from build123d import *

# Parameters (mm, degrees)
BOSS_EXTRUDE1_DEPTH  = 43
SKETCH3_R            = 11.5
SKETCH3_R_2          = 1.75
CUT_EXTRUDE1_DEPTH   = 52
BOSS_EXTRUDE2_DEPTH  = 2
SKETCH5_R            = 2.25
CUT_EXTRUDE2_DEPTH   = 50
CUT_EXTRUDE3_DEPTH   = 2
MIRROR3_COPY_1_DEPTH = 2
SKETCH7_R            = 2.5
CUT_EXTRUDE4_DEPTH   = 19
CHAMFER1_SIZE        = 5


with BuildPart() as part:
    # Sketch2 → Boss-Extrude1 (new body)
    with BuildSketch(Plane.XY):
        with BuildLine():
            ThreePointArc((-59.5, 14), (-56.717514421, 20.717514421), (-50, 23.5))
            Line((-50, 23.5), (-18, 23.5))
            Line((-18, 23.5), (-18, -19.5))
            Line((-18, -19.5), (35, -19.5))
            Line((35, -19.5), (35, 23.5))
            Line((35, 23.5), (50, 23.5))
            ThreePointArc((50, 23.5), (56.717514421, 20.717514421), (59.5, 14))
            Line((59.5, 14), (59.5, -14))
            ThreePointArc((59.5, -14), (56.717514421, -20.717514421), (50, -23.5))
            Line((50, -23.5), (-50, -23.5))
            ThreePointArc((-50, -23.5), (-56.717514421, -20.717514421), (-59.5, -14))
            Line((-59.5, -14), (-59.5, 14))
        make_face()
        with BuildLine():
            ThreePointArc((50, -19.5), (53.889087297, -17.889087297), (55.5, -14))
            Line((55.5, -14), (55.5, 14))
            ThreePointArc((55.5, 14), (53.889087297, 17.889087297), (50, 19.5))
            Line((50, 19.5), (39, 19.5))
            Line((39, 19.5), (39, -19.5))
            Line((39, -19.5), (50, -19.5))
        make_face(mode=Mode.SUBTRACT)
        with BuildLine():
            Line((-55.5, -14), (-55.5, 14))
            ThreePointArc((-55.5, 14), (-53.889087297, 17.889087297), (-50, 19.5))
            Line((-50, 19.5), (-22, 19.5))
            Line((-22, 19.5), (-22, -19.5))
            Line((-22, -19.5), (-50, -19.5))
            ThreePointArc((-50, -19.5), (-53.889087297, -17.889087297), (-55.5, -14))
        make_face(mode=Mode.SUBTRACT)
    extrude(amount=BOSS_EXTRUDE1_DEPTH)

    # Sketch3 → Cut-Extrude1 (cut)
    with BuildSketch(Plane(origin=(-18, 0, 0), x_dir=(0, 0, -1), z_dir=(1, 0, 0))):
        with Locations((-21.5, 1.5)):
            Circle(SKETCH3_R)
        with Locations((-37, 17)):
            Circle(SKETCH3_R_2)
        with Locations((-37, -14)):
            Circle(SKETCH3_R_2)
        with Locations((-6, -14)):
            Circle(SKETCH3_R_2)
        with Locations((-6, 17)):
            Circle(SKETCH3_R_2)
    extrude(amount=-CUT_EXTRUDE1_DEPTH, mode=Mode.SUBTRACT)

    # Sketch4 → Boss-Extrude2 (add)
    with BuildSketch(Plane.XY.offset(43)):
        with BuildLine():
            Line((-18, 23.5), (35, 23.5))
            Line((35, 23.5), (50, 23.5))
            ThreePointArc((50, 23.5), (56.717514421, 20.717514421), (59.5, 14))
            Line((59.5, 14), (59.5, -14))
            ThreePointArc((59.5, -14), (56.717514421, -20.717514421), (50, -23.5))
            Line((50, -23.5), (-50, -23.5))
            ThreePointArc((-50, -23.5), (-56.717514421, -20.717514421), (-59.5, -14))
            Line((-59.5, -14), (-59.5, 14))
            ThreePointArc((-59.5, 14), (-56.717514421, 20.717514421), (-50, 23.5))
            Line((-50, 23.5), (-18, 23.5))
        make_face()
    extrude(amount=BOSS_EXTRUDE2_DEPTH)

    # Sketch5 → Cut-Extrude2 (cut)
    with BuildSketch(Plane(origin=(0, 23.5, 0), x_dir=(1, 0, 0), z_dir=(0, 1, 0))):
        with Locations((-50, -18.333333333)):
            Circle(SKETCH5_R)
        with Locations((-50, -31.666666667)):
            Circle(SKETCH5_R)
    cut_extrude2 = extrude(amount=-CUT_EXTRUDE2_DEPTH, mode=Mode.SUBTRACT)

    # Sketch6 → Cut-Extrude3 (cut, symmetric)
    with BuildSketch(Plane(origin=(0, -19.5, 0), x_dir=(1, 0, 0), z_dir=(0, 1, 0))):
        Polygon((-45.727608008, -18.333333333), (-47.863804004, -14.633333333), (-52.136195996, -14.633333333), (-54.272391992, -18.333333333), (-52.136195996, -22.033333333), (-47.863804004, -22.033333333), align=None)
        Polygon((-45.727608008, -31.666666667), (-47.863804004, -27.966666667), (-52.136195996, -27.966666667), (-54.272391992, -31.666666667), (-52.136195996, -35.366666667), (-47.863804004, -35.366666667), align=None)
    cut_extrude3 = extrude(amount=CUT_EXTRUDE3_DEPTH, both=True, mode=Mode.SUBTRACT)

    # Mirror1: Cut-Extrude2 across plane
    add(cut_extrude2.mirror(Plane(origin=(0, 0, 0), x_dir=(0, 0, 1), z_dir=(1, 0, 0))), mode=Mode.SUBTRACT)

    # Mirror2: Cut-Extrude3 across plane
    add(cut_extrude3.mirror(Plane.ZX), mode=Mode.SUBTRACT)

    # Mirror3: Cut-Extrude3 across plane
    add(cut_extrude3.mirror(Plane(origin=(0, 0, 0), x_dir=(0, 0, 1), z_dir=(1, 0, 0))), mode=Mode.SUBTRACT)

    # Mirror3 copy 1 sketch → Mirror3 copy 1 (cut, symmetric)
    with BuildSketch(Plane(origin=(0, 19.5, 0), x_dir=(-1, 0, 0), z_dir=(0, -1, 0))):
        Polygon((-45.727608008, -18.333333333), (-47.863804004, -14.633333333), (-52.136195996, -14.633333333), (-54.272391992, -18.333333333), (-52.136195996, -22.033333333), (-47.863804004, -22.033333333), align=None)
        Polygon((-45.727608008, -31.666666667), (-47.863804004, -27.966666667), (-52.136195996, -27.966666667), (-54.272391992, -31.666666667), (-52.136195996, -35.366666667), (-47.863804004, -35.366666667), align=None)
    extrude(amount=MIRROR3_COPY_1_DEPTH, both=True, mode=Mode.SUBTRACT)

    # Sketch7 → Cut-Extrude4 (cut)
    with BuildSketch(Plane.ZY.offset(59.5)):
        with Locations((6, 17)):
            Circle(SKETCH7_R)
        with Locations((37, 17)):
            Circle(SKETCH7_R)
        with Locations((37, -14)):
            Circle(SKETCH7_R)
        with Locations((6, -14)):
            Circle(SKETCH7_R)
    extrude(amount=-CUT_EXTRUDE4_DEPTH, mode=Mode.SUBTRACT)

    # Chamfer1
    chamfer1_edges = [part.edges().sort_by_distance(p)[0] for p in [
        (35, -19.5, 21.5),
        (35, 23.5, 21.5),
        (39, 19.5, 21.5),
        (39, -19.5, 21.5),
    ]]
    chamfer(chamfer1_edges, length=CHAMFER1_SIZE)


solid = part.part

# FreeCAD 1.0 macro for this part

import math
import FreeCAD as App
import Part
import Sketcher

V = App.Vector
Q = App.Units.Quantity


def edges_at(feature, points):
    """Names of the edges that pass closest to the given points."""
    edges = feature.Shape.Edges
    near = lambda p: min(range(len(edges)), key=lambda i: edges[i].distToShape(Part.Vertex(*p))[0])
    return sorted({f"Edge{near(p) + 1}" for p in points})


def add_polygon(sketch, points):
    """Adds a closed chain of lines whose ends are joined by coincident constraints."""
    first, n = sketch.GeometryCount, len(points)
    for a, b in zip(points, points[1:] + points[:1]):
        sketch.addGeometry(Part.LineSegment(App.Vector(*a, 0), App.Vector(*b, 0)), False)
    for i in range(n):
        sketch.addConstraint(Sketcher.Constraint("Coincident", first + i, 2, first + (i + 1) % n, 1))

doc = App.newDocument("Part")
params = doc.addObject("Spreadsheet::Sheet", "Params")
for row, (alias, value) in enumerate([
    ("sketch1_radius", "9.5 mm"),
    ("sketch1_radius2", "5.5 mm"),
    ("sketch1_width", "100 mm"),
    ("sketch1_width2", "15 mm"),
    ("sketch1_width3", "53 mm"),
    ("pad1_length", "43 mm"),
    ("sketch2_diameter", "23 mm"),
    ("sketch2_diameter2", "3.5 mm"),
    ("pocket1_length", "52 mm"),
    ("sketch3_radius", "9.5 mm"),
    ("sketch3_width", "100 mm"),
    ("sketch3_height", "28 mm"),
    ("pad2_length", "2 mm"),
    ("sketch4_diameter", "4.5 mm"),
    ("pocket2_length", "50 mm"),
    ("pocket3_length", "4 mm"),
    ("pocket4_length", "4 mm"),
    ("sketch7_diameter", "5 mm"),
    ("pocket5_length", "19 mm"),
    ("chamfer_size", "5 mm"),
], start=1):
    params.set(f"A{row}", alias)
    params.set(f"B{row}", "=" + value)
    params.setAlias(f"B{row}", alias)

body = doc.addObject("PartDesign::Body", "Body")

# Sketch on XY plane
sketch1 = body.newObject("Sketcher::SketchObject", "Sketch")
sketch1.AttachmentSupport = (doc.getObject("XY_Plane"), [""])
sketch1.MapMode = "FlatFace"
sketch1.addGeometry([
    Part.ArcOfCircle(Part.Circle(V(-50, 14, 0), V(0, 0, 1), 9.5), math.radians(90), math.radians(180)),  # 0
    Part.LineSegment(V(-59.5, 14, 0), V(-59.5, -14, 0)),  # 1
    Part.ArcOfCircle(Part.Circle(V(-50, -14, 0), V(0, 0, 1), 9.5), math.radians(-180), math.radians(-90)),  # 2
    Part.LineSegment(V(-50, -23.5, 0), V(50, -23.5, 0)),  # 3
    Part.ArcOfCircle(Part.Circle(V(50, -14, 0), V(0, 0, 1), 9.5), math.radians(-90), math.radians(0)),  # 4
    Part.LineSegment(V(59.5, -14, 0), V(59.5, 14, 0)),  # 5
    Part.ArcOfCircle(Part.Circle(V(50, 14, 0), V(0, 0, 1), 9.5), math.radians(0), math.radians(90)),  # 6
    Part.LineSegment(V(50, 23.5, 0), V(35, 23.5, 0)),  # 7
    Part.LineSegment(V(35, 23.5, 0), V(35, -19.5, 0)),  # 8
    Part.LineSegment(V(35, -19.5, 0), V(-18, -19.5, 0)),  # 9
    Part.LineSegment(V(-18, -19.5, 0), V(-18, 23.5, 0)),  # 10
    Part.LineSegment(V(-18, 23.5, 0), V(-50, 23.5, 0)),  # 11
    Part.LineSegment(V(50, -19.5, 0), V(39, -19.5, 0)),  # 12
    Part.LineSegment(V(39, -19.5, 0), V(39, 19.5, 0)),  # 13
    Part.LineSegment(V(39, 19.5, 0), V(50, 19.5, 0)),  # 14
    Part.ArcOfCircle(Part.Circle(V(50, 14, 0), V(0, 0, 1), 5.5), math.radians(0), math.radians(90)),  # 15
    Part.LineSegment(V(55.5, 14, 0), V(55.5, -14, 0)),  # 16
    Part.ArcOfCircle(Part.Circle(V(50, -14, 0), V(0, 0, 1), 5.5), math.radians(-90), math.radians(0)),  # 17
    Part.LineSegment(V(-55.5, -14, 0), V(-55.5, 14, 0)),  # 18
    Part.ArcOfCircle(Part.Circle(V(-50, 14, 0), V(0, 0, 1), 5.5), math.radians(90), math.radians(180)),  # 19
    Part.LineSegment(V(-50, 19.5, 0), V(-22, 19.5, 0)),  # 20
    Part.LineSegment(V(-22, 19.5, 0), V(-22, -19.5, 0)),  # 21
    Part.LineSegment(V(-22, -19.5, 0), V(-50, -19.5, 0)),  # 22
    Part.ArcOfCircle(Part.Circle(V(-50, -14, 0), V(0, 0, 1), 5.5), math.radians(180), math.radians(270)),  # 23
], False)
sketch1.addConstraint([
    Sketcher.Constraint("Tangent", 0, 2, 1, 1),
    Sketcher.Constraint("Tangent", 1, 2, 2, 1),
    Sketcher.Constraint("Tangent", 2, 2, 3, 1),
    Sketcher.Constraint("Tangent", 3, 2, 4, 1),
    Sketcher.Constraint("Tangent", 4, 2, 5, 1),
    Sketcher.Constraint("Tangent", 5, 2, 6, 1),
    Sketcher.Constraint("Tangent", 6, 2, 7, 1),
    Sketcher.Constraint("Coincident", 7, 2, 8, 1),
    Sketcher.Constraint("Coincident", 8, 2, 9, 1),
    Sketcher.Constraint("Coincident", 9, 2, 10, 1),
    Sketcher.Constraint("Coincident", 10, 2, 11, 1),
    Sketcher.Constraint("Tangent", 11, 2, 0, 1),
    Sketcher.Constraint("Coincident", 12, 2, 13, 1),
    Sketcher.Constraint("Coincident", 13, 2, 14, 1),
    Sketcher.Constraint("Tangent", 14, 2, 15, 2),
    Sketcher.Constraint("Tangent", 15, 1, 16, 1),
    Sketcher.Constraint("Tangent", 16, 2, 17, 2),
    Sketcher.Constraint("Tangent", 17, 1, 12, 1),
    Sketcher.Constraint("Tangent", 18, 2, 19, 2),
    Sketcher.Constraint("Tangent", 19, 1, 20, 1),
    Sketcher.Constraint("Coincident", 20, 2, 21, 1),
    Sketcher.Constraint("Coincident", 21, 2, 22, 1),
    Sketcher.Constraint("Tangent", 22, 2, 23, 2),
    Sketcher.Constraint("Tangent", 23, 1, 18, 1),
    Sketcher.Constraint("Vertical", 1),
    Sketcher.Constraint("Horizontal", 3),
    Sketcher.Constraint("Vertical", 5),
    Sketcher.Constraint("Horizontal", 7),
    Sketcher.Constraint("Vertical", 8),
    Sketcher.Constraint("Horizontal", 9),
    Sketcher.Constraint("Vertical", 10),
    Sketcher.Constraint("Horizontal", 11),
    Sketcher.Constraint("Horizontal", 12),
    Sketcher.Constraint("Vertical", 13),
    Sketcher.Constraint("Horizontal", 14),
    Sketcher.Constraint("Vertical", 16),
    Sketcher.Constraint("Vertical", 18),
    Sketcher.Constraint("Horizontal", 20),
    Sketcher.Constraint("Vertical", 21),
    Sketcher.Constraint("Horizontal", 22),
    Sketcher.Constraint("Coincident", 15, 3, 6, 3),
    Sketcher.Constraint("Coincident", 17, 3, 4, 3),
    Sketcher.Constraint("Coincident", 19, 3, 0, 3),
    Sketcher.Constraint("Coincident", 23, 3, 2, 3),
    Sketcher.Constraint("Equal", 0, 2),
    Sketcher.Constraint("Equal", 2, 4),
    Sketcher.Constraint("Equal", 4, 6),
    Sketcher.Constraint("Equal", 17, 19),
    Sketcher.Constraint("Symmetric", 0, 3, 4, 3, -1, 1),
    Sketcher.Constraint("Horizontal", 0, 3, 6, 3),
    Sketcher.Constraint("Horizontal", 9, 2, 12, 2),
    Sketcher.Constraint("Equal", 22, 1),
    Sketcher.Constraint("Radius", 0, 9.5),
    Sketcher.Constraint("Radius", 15, 5.5),
    Sketcher.Constraint("DistanceX", 3, 1, 3, 2, 100.0),
    Sketcher.Constraint("DistanceX", 7, 2, 7, 1, 15.0),
    Sketcher.Constraint("DistanceX", 9, 2, 9, 1, 53.0),
    Sketcher.Constraint("DistanceX", 12, 2, 12, 1, 11.0),
    Sketcher.Constraint("DistanceX", 20, 1, 20, 2, 28.0),
])
sketch1.setExpression("Constraints[52]", "Params.sketch1_radius")
sketch1.setExpression("Constraints[53]", "Params.sketch1_radius2")
sketch1.setExpression("Constraints[54]", "Params.sketch1_width")
sketch1.setExpression("Constraints[55]", "Params.sketch1_width2")
sketch1.setExpression("Constraints[56]", "Params.sketch1_width3")
pad1 = body.newObject("PartDesign::Pad", "Pad")
pad1.Profile = sketch1
pad1.setExpression("Length", "Params.pad1_length")

# Sketch on YZ plane
sketch2 = body.newObject("Sketcher::SketchObject", "Sketch001")
sketch2.AttachmentSupport = (doc.getObject("YZ_Plane"), [""])
sketch2.MapMode = "FlatFace"
sketch2.AttachmentOffset = App.Placement(V(0, 0, -18), App.Rotation())
sketch2.addGeometry([
    Part.Circle(V(1.5, 21.5, 0), V(0, 0, 1), 11.5),  # 0
    Part.Circle(V(17, 37, 0), V(0, 0, 1), 1.75),  # 1
    Part.Circle(V(-14, 37, 0), V(0, 0, 1), 1.75),  # 2
    Part.Circle(V(-14, 6, 0), V(0, 0, 1), 1.75),  # 3
    Part.Circle(V(17, 6, 0), V(0, 0, 1), 1.75),  # 4
], False)
sketch2.addConstraint([
    Sketcher.Constraint("Equal", 1, 2),
    Sketcher.Constraint("Equal", 2, 3),
    Sketcher.Constraint("Equal", 3, 4),
    Sketcher.Constraint("Horizontal", 1, 3, 2, 3),
    Sketcher.Constraint("Horizontal", 3, 3, 4, 3),
    Sketcher.Constraint("Vertical", 2, 3, 3, 3),
    Sketcher.Constraint("Vertical", 1, 3, 4, 3),
    Sketcher.Constraint("Diameter", 0, 23.0),
    Sketcher.Constraint("Diameter", 1, 3.5),
    Sketcher.Constraint("DistanceX", -1, 1, 1, 3, 17.0),
    Sketcher.Constraint("DistanceY", -1, 1, 1, 3, 37.0),
    Sketcher.Constraint("DistanceX", 2, 3, -1, 1, 14.0),
    Sketcher.Constraint("DistanceY", -1, 1, 3, 3, 6.0),
    Sketcher.Constraint("DistanceX", -1, 1, 0, 3, 1.5),
    Sketcher.Constraint("DistanceY", -1, 1, 0, 3, 21.5),
])
sketch2.setExpression("Constraints[7]", "Params.sketch2_diameter")
sketch2.setExpression("Constraints[8]", "Params.sketch2_diameter2")
pocket1 = body.newObject("PartDesign::Pocket", "Pocket")
pocket1.Profile = sketch2
pocket1.setExpression("Length", "Params.pocket1_length")

# Sketch on XY plane
sketch3 = body.newObject("Sketcher::SketchObject", "Sketch002")
sketch3.AttachmentSupport = (doc.getObject("XY_Plane"), [""])
sketch3.MapMode = "FlatFace"
sketch3.AttachmentOffset = App.Placement(V(0, 0, 43), App.Rotation())
sketch3.addGeometry([
    Part.ArcOfCircle(Part.Circle(V(50, 14, 0), V(0, 0, 1), 9.5), math.radians(0), math.radians(90)),  # 0
    Part.LineSegment(V(50, 23.5, 0), V(-50, 23.5, 0)),  # 1
    Part.ArcOfCircle(Part.Circle(V(-50, 14, 0), V(0, 0, 1), 9.5), math.radians(90), math.radians(180)),  # 2
    Part.LineSegment(V(-59.5, 14, 0), V(-59.5, -14, 0)),  # 3
    Part.ArcOfCircle(Part.Circle(V(-50, -14, 0), V(0, 0, 1), 9.5), math.radians(-180), math.radians(-90)),  # 4
    Part.LineSegment(V(-50, -23.5, 0), V(50, -23.5, 0)),  # 5
    Part.ArcOfCircle(Part.Circle(V(50, -14, 0), V(0, 0, 1), 9.5), math.radians(-90), math.radians(0)),  # 6
    Part.LineSegment(V(59.5, -14, 0), V(59.5, 14, 0)),  # 7
], False)
sketch3.addConstraint([
    Sketcher.Constraint("Tangent", 0, 2, 1, 1),
    Sketcher.Constraint("Tangent", 1, 2, 2, 1),
    Sketcher.Constraint("Tangent", 2, 2, 3, 1),
    Sketcher.Constraint("Tangent", 3, 2, 4, 1),
    Sketcher.Constraint("Tangent", 4, 2, 5, 1),
    Sketcher.Constraint("Tangent", 5, 2, 6, 1),
    Sketcher.Constraint("Tangent", 6, 2, 7, 1),
    Sketcher.Constraint("Tangent", 7, 2, 0, 1),
    Sketcher.Constraint("Horizontal", 1),
    Sketcher.Constraint("Vertical", 3),
    Sketcher.Constraint("Horizontal", 5),
    Sketcher.Constraint("Vertical", 7),
    Sketcher.Constraint("Equal", 0, 2),
    Sketcher.Constraint("Equal", 2, 4),
    Sketcher.Constraint("Equal", 4, 6),
    Sketcher.Constraint("Symmetric", 0, 3, 4, 3, -1, 1),
    Sketcher.Constraint("Radius", 0, 9.5),
    Sketcher.Constraint("DistanceX", 1, 2, 1, 1, 100.0),
    Sketcher.Constraint("DistanceY", 3, 2, 3, 1, 28.0),
])
sketch3.setExpression("Constraints[16]", "Params.sketch3_radius")
sketch3.setExpression("Constraints[17]", "Params.sketch3_width")
sketch3.setExpression("Constraints[18]", "Params.sketch3_height")
pad2 = body.newObject("PartDesign::Pad", "Pad001")
pad2.Profile = sketch3
pad2.setExpression("Length", "Params.pad2_length")

# Sketch on XZ plane
sketch4 = body.newObject("Sketcher::SketchObject", "Sketch003")
sketch4.AttachmentSupport = (doc.getObject("XZ_Plane"), [""])
sketch4.MapMode = "FlatFace"
sketch4.AttachmentOffset = App.Placement(V(0, 0, -23.5), App.Rotation())
sketch4.addGeometry([
    Part.Circle(V(-50, 18.333333, 0), V(0, 0, 1), 2.25),
    Part.Circle(V(-50, 31.666667, 0), V(0, 0, 1), 2.25),
], False)
sketch4.addConstraint([
    Sketcher.Constraint("Equal", 0, 1),
    Sketcher.Constraint("Vertical", 0, 3, 1, 3),
    Sketcher.Constraint("Diameter", 0, 4.5),
    Sketcher.Constraint("DistanceX", 0, 3, -1, 1, 50.0),
    Sketcher.Constraint("DistanceY", -1, 1, 0, 3, 18.333333),
    Sketcher.Constraint("DistanceY", -1, 1, 1, 3, 31.666667),
])
sketch4.setExpression("Constraints[2]", "Params.sketch4_diameter")
pocket2 = body.newObject("PartDesign::Pocket", "Pocket001")
pocket2.Profile = sketch4
pocket2.setExpression("Length", "Params.pocket2_length")
pocket2.Reversed = True

# Sketch on XZ plane
sketch5 = body.newObject("Sketcher::SketchObject", "Sketch004")
sketch5.AttachmentSupport = (doc.getObject("XZ_Plane"), [""])
sketch5.MapMode = "FlatFace"
sketch5.AttachmentOffset = App.Placement(V(0, 0, 19.5), App.Rotation())
add_polygon(sketch5, [(-45.727608, 18.333333), (-47.863804, 14.633333), (-52.136196, 14.633333), (-54.272392, 18.333333), (-52.136196, 22.033333), (-47.863804, 22.033333)])  # lines 0-5
add_polygon(sketch5, [(-45.727608, 31.666667), (-47.863804, 27.966667), (-52.136196, 27.966667), (-54.272392, 31.666667), (-52.136196, 35.366667), (-47.863804, 35.366667)])  # lines 6-11
sketch5.addConstraint([
    Sketcher.Constraint("Horizontal", 1),
    Sketcher.Constraint("Horizontal", 4),
    Sketcher.Constraint("Horizontal", 7),
    Sketcher.Constraint("Horizontal", 10),
    Sketcher.Constraint("Parallel", 0, 3),
    Sketcher.Constraint("Parallel", 2, 5),
    Sketcher.Constraint("Parallel", 3, 6),
    Sketcher.Constraint("Parallel", 5, 8),
    Sketcher.Constraint("Parallel", 6, 9),
    Sketcher.Constraint("Parallel", 8, 11),
    Sketcher.Constraint("Horizontal", 2, 2, 5, 2),
    Sketcher.Constraint("Horizontal", 8, 2, 11, 2),
    Sketcher.Constraint("Vertical", 1, 2, 3, 2),
    Sketcher.Constraint("Vertical", 0, 2, 4, 2),
    Sketcher.Constraint("Vertical", 4, 2, 6, 2),
    Sketcher.Constraint("Vertical", 3, 2, 7, 2),
    Sketcher.Constraint("Vertical", 2, 2, 8, 2),
    Sketcher.Constraint("Vertical", 7, 2, 9, 2),
    Sketcher.Constraint("Angle", 0, Q("-120 deg")),
    Sketcher.Constraint("DistanceY", 1, 2, 2, 2, 3.7),
    Sketcher.Constraint("DistanceX", 1, 2, 1, 1, 4.272392),
    Sketcher.Constraint("DistanceX", 2, 2, -1, 1, 54.272392),
    Sketcher.Constraint("DistanceY", -1, 1, 0, 2, 14.633333),
    Sketcher.Constraint("DistanceY", -1, 1, 6, 2, 27.966667),
])
pocket3 = body.newObject("PartDesign::Pocket", "Pocket002")
pocket3.Profile = sketch5
pocket3.setExpression("Length", "Params.pocket3_length")
pocket3.Midplane = True
doc.recompute()

mirrored = body.newObject("PartDesign::Mirrored", "Mirrored")
mirrored.Originals = [pocket2]
mirrored.MirrorPlane = (doc.getObject("YZ_Plane"), [""])
body.Tip = mirrored
doc.recompute()

mirrored2 = body.newObject("PartDesign::Mirrored", "Mirrored001")
mirrored2.Originals = [pocket3]
mirrored2.MirrorPlane = (doc.getObject("XZ_Plane"), [""])
body.Tip = mirrored2
doc.recompute()

mirrored3 = body.newObject("PartDesign::Mirrored", "Mirrored002")
mirrored3.Originals = [pocket3]
mirrored3.MirrorPlane = (doc.getObject("YZ_Plane"), [""])
body.Tip = mirrored3

# Sketch on XZ plane
sketch6 = body.newObject("Sketcher::SketchObject", "Sketch005")
sketch6.AttachmentSupport = (doc.getObject("XZ_Plane"), [""])
sketch6.MapMode = "FlatFace"
sketch6.AttachmentOffset = App.Placement(V(0, 0, -19.5), App.Rotation())
add_polygon(sketch6, [(45.727608, 18.333333), (47.863804, 14.633333), (52.136196, 14.633333), (54.272392, 18.333333), (52.136196, 22.033333), (47.863804, 22.033333)])  # lines 0-5
add_polygon(sketch6, [(45.727608, 31.666667), (47.863804, 27.966667), (52.136196, 27.966667), (54.272392, 31.666667), (52.136196, 35.366667), (47.863804, 35.366667)])  # lines 6-11
sketch6.addConstraint([
    Sketcher.Constraint("Horizontal", 1),
    Sketcher.Constraint("Horizontal", 4),
    Sketcher.Constraint("Horizontal", 7),
    Sketcher.Constraint("Horizontal", 10),
    Sketcher.Constraint("Parallel", 0, 3),
    Sketcher.Constraint("Parallel", 2, 5),
    Sketcher.Constraint("Parallel", 3, 6),
    Sketcher.Constraint("Parallel", 5, 8),
    Sketcher.Constraint("Parallel", 6, 9),
    Sketcher.Constraint("Parallel", 8, 11),
    Sketcher.Constraint("Horizontal", 2, 2, 5, 2),
    Sketcher.Constraint("Horizontal", 8, 2, 11, 2),
    Sketcher.Constraint("Vertical", 1, 2, 3, 2),
    Sketcher.Constraint("Vertical", 0, 2, 4, 2),
    Sketcher.Constraint("Vertical", 4, 2, 6, 2),
    Sketcher.Constraint("Vertical", 3, 2, 7, 2),
    Sketcher.Constraint("Vertical", 2, 2, 8, 2),
    Sketcher.Constraint("Vertical", 7, 2, 9, 2),
    Sketcher.Constraint("Angle", 0, Q("-60 deg")),
    Sketcher.Constraint("DistanceY", 1, 2, 2, 2, 3.7),
    Sketcher.Constraint("DistanceX", 1, 1, 1, 2, 4.272392),
    Sketcher.Constraint("DistanceX", -1, 1, 2, 2, 54.272392),
    Sketcher.Constraint("DistanceY", -1, 1, 0, 2, 14.633333),
    Sketcher.Constraint("DistanceY", -1, 1, 6, 2, 27.966667),
])
pocket4 = body.newObject("PartDesign::Pocket", "Pocket003")
pocket4.Profile = sketch6
pocket4.setExpression("Length", "Params.pocket4_length")
pocket4.Midplane = True

# Sketch on YZ plane
sketch7 = body.newObject("Sketcher::SketchObject", "Sketch006")
sketch7.AttachmentSupport = (doc.getObject("YZ_Plane"), [""])
sketch7.MapMode = "FlatFace"
sketch7.AttachmentOffset = App.Placement(V(0, 0, -59.5), App.Rotation())
sketch7.addGeometry([
    Part.Circle(V(17, 6, 0), V(0, 0, 1), 2.5),
    Part.Circle(V(17, 37, 0), V(0, 0, 1), 2.5),
    Part.Circle(V(-14, 37, 0), V(0, 0, 1), 2.5),
    Part.Circle(V(-14, 6, 0), V(0, 0, 1), 2.5),
], False)
sketch7.addConstraint([
    Sketcher.Constraint("Equal", 0, 1),
    Sketcher.Constraint("Equal", 1, 2),
    Sketcher.Constraint("Equal", 2, 3),
    Sketcher.Constraint("Horizontal", 1, 3, 2, 3),
    Sketcher.Constraint("Horizontal", 0, 3, 3, 3),
    Sketcher.Constraint("Vertical", 0, 3, 1, 3),
    Sketcher.Constraint("Vertical", 2, 3, 3, 3),
    Sketcher.Constraint("Diameter", 0, 5.0),
    Sketcher.Constraint("DistanceX", -1, 1, 0, 3, 17.0),
    Sketcher.Constraint("DistanceY", -1, 1, 0, 3, 6.0),
    Sketcher.Constraint("DistanceY", -1, 1, 1, 3, 37.0),
    Sketcher.Constraint("DistanceX", 2, 3, -1, 1, 14.0),
])
sketch7.setExpression("Constraints[7]", "Params.sketch7_diameter")
pocket5 = body.newObject("PartDesign::Pocket", "Pocket004")
pocket5.Profile = sketch7
pocket5.setExpression("Length", "Params.pocket5_length")
pocket5.Reversed = True
doc.recompute()

chamfer = body.newObject("PartDesign::Chamfer", "Chamfer")
chamfer.Base = (pocket5, edges_at(pocket5, [
    (35, -19.5, 21.5),
    (35, 23.5, 21.5),
    (39, 19.5, 21.5),
    (39, -19.5, 21.5),
]))
chamfer.setExpression("Size", "Params.chamfer_size")

doc.recompute()
